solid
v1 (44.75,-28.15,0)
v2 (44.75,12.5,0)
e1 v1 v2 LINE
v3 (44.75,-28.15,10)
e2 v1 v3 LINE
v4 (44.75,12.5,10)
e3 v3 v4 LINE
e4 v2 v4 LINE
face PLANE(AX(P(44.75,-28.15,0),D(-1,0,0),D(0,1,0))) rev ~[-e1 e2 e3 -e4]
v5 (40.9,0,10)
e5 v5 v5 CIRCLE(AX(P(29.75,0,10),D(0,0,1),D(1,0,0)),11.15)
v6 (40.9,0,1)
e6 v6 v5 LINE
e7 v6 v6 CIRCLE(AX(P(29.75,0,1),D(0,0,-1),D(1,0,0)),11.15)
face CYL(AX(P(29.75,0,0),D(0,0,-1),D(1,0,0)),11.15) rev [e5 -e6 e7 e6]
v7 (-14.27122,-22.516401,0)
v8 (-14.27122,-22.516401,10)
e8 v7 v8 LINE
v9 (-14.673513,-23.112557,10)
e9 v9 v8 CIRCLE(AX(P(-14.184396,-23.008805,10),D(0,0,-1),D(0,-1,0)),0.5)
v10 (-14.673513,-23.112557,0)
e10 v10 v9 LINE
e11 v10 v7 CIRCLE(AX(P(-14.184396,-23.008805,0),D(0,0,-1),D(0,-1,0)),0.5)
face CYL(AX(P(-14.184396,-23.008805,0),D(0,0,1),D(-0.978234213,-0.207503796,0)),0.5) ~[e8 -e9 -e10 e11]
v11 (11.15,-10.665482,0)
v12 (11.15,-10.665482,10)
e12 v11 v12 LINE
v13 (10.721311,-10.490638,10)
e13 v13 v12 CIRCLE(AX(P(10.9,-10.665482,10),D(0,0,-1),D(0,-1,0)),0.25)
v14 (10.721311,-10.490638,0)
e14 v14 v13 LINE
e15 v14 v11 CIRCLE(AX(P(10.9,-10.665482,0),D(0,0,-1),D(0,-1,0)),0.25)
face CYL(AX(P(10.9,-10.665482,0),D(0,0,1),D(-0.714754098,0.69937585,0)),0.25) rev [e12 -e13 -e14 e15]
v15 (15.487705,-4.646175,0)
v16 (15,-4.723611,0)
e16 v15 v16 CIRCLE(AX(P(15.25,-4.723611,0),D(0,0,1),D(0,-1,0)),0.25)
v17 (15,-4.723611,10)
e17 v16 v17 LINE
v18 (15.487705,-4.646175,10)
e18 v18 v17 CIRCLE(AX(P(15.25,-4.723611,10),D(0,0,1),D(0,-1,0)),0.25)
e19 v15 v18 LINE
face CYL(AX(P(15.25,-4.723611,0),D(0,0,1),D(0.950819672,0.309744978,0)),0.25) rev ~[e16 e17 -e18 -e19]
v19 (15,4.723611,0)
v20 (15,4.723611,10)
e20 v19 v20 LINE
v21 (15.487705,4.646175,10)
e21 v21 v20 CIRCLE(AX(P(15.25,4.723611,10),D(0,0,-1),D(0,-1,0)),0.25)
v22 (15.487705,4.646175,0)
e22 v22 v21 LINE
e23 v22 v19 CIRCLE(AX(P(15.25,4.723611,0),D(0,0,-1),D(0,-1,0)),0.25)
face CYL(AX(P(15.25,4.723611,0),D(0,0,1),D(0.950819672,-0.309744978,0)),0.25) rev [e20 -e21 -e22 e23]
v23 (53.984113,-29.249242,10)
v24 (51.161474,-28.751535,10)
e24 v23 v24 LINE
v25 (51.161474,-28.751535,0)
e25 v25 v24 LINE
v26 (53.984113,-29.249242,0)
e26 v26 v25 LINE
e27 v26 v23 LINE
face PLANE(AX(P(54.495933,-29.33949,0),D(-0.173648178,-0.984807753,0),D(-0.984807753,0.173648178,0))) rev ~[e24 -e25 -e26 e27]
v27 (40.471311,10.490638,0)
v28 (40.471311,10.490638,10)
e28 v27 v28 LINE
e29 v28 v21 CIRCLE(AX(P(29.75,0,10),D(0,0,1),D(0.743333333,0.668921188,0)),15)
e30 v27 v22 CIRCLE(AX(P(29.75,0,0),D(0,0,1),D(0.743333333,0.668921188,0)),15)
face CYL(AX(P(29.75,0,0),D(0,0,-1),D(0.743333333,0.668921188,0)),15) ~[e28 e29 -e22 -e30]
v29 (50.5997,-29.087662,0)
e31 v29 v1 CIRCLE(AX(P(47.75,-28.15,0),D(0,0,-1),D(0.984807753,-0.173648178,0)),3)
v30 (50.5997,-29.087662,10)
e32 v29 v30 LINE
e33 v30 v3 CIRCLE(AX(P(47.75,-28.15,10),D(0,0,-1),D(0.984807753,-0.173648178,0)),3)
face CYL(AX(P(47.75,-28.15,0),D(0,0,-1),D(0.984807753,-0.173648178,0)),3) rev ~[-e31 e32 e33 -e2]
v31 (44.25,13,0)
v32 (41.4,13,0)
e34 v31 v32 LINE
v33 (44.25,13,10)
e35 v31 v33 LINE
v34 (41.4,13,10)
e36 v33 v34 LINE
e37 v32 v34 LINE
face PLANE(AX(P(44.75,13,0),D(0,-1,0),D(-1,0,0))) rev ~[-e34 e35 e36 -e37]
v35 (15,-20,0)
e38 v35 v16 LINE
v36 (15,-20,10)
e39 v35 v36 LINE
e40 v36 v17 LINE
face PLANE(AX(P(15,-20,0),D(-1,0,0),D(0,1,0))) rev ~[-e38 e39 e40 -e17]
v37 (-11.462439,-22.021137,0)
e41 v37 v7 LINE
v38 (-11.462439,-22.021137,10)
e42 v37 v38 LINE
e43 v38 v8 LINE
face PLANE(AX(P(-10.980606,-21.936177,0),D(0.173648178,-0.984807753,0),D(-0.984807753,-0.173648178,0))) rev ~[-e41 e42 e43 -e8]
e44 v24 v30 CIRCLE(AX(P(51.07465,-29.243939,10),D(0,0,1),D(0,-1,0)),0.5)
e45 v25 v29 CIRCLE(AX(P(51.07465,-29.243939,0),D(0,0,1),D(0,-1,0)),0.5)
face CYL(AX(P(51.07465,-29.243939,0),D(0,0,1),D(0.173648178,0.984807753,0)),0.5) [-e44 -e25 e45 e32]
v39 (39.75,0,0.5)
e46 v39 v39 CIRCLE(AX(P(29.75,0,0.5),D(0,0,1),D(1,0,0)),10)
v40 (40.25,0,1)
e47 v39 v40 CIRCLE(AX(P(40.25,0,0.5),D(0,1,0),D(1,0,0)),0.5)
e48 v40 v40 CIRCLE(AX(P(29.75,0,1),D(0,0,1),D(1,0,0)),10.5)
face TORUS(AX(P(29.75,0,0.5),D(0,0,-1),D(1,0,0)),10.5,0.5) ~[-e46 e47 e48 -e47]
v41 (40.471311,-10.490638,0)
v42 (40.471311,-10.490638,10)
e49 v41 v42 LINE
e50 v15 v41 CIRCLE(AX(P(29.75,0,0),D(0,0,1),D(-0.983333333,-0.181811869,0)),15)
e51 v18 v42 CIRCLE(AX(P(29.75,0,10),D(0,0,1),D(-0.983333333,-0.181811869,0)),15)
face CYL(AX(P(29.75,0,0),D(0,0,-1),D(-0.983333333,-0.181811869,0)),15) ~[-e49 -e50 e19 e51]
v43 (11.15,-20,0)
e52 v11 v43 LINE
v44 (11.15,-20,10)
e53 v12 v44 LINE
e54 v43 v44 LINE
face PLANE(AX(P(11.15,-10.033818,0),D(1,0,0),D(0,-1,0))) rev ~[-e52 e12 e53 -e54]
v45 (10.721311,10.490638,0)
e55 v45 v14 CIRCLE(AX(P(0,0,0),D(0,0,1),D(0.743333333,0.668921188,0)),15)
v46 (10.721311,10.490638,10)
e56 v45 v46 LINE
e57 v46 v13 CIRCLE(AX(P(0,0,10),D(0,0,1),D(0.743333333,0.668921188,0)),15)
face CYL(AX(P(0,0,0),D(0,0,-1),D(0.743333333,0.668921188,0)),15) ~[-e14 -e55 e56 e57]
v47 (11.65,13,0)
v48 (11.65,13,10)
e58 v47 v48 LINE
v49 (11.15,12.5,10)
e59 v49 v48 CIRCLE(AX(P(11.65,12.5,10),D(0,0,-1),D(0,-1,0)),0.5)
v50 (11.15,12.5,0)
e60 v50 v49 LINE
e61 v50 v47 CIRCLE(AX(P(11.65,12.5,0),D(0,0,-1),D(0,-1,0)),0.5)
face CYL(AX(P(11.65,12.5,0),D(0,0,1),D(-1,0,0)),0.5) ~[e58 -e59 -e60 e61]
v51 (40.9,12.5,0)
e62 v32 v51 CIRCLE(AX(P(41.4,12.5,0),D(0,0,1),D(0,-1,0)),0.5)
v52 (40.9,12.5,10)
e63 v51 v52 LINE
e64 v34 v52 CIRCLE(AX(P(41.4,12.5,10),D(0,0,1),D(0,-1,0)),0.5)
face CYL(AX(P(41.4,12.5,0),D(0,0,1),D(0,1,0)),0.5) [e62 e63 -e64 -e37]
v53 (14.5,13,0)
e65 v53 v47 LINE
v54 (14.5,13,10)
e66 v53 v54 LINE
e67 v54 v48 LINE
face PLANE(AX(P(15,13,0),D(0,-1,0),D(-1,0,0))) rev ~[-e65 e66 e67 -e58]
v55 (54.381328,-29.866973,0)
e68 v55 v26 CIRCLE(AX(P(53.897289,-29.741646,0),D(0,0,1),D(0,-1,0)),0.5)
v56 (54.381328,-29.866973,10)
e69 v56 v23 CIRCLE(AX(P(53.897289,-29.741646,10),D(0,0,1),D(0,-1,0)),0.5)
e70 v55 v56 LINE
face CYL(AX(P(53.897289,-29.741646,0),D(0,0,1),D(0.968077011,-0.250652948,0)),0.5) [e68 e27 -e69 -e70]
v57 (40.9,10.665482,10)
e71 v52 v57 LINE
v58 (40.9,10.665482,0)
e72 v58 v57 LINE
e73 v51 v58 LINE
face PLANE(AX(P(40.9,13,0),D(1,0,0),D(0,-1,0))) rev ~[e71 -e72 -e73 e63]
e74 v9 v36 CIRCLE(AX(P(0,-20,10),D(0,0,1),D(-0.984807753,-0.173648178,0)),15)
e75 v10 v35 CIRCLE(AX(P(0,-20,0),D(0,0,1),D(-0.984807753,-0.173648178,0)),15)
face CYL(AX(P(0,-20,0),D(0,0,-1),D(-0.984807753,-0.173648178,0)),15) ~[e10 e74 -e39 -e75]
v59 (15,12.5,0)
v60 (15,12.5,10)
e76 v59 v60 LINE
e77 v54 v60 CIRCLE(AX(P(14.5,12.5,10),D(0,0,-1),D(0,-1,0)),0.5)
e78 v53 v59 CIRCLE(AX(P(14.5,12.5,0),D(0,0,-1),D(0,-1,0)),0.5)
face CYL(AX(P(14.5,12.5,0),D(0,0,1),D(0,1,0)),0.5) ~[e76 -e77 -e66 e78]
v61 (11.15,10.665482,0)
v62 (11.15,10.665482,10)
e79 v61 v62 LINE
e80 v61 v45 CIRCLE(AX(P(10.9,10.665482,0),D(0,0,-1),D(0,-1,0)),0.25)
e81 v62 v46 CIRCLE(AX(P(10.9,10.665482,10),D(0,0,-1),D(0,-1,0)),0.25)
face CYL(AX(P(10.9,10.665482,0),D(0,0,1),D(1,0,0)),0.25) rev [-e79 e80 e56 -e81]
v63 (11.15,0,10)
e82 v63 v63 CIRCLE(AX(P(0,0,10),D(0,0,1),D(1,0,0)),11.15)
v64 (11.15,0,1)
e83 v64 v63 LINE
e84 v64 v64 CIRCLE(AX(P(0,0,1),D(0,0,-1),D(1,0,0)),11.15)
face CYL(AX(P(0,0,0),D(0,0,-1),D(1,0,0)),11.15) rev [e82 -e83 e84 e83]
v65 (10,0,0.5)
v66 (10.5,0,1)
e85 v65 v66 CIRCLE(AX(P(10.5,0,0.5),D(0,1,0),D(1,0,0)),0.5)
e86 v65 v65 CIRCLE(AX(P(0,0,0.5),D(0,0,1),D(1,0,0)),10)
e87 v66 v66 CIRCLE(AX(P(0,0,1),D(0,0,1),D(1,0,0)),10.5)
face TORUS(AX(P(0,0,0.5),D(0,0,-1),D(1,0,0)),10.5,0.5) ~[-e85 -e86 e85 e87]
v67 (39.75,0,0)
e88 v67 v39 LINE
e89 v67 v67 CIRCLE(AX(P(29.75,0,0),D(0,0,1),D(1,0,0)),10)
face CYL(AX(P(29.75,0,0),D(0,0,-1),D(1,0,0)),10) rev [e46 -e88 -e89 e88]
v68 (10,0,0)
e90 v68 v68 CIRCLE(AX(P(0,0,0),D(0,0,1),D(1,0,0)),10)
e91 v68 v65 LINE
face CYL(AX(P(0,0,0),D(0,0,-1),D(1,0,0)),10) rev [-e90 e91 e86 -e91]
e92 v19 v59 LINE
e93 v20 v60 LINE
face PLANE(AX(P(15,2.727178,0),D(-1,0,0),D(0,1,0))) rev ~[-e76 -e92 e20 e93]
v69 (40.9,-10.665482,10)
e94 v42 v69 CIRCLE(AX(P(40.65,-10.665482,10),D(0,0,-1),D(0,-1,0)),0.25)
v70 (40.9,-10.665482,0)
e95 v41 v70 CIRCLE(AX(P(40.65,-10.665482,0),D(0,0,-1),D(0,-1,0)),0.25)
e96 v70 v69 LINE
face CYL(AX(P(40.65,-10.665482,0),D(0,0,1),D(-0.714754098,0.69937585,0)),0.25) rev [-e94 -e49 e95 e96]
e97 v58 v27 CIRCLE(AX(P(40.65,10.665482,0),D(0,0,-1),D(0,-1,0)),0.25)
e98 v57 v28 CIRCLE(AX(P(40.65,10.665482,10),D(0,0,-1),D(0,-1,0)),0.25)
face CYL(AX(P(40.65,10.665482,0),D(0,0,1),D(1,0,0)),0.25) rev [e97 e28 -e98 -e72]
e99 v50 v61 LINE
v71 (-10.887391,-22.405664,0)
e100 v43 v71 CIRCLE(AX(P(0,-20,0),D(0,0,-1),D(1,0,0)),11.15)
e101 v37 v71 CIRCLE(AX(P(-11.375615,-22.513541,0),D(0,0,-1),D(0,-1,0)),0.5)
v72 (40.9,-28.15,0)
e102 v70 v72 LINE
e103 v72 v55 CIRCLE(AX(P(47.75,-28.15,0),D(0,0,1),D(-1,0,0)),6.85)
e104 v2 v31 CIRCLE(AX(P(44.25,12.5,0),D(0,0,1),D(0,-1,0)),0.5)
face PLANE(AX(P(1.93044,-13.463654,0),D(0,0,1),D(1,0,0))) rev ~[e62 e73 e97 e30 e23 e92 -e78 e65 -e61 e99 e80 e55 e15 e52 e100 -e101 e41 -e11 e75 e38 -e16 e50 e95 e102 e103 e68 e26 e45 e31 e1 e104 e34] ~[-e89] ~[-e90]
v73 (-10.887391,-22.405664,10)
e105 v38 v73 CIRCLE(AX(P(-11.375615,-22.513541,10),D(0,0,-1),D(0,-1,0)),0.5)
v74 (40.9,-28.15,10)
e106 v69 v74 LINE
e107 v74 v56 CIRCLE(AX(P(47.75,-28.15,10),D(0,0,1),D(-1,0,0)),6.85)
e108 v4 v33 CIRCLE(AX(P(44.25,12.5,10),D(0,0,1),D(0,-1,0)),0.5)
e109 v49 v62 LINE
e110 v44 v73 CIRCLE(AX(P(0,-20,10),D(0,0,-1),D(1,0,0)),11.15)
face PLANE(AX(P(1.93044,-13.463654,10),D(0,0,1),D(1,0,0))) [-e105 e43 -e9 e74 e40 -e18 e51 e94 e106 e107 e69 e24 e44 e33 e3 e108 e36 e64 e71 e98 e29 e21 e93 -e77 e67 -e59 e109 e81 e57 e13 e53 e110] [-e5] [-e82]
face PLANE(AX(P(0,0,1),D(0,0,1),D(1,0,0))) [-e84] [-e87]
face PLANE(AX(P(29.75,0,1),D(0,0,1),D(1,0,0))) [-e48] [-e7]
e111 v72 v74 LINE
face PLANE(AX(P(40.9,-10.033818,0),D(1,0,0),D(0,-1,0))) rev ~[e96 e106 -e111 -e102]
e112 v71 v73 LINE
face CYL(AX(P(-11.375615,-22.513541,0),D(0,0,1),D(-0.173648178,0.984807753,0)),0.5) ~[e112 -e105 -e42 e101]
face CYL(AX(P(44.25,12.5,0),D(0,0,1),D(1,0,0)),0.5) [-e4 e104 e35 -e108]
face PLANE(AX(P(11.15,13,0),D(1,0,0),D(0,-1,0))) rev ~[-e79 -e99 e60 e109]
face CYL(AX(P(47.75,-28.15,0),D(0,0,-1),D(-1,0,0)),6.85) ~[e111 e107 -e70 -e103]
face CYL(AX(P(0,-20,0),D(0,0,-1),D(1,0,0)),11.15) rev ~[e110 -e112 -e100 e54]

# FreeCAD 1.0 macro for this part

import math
import FreeCAD as App
import Part
import Sketcher
Q = App.Units.Quantity


def edges_at(feature, points):
    """Names of the edges that pass closest to the given points."""
    edges = feature.Shape.Edges
    near = lambda p: min(range(len(edges)), key=lambda i: edges[i].distToShape(Part.Vertex(*p))[0])
    return sorted({f"Edge{near(p) + 1}" for p in points})

doc = App.newDocument("Part")
body = doc.addObject("PartDesign::Body", "Body")

sketch1 = body.newObject("Sketcher::SketchObject", "Sketch")
sketch1.AttachmentSupport = (doc.getObject("XY_Plane"), [""])
sketch1.MapMode = "FlatFace"
sketch1.addGeometry(Part.ArcOfCircle(Part.Circle(App.Vector(29.75, 0, 0), App.Vector(0, 0, 1), 15), math.radians(-169.524686), math.radians(-41.983856)), False)
sketch1.addGeometry(Part.LineSegment(App.Vector(40.9, -10.033818, 0), App.Vector(40.9, -28.15, 0)), False)
sketch1.addGeometry(Part.ArcOfCircle(Part.Circle(App.Vector(47.75, -28.15, 0), App.Vector(0, 0, 1), 6.85), math.radians(180), math.radians(350)), False)
sketch1.addGeometry(Part.LineSegment(App.Vector(54.495933, -29.33949, 0), App.Vector(50.704423, -28.670945, 0)), False)
sketch1.addGeometry(Part.ArcOfCircle(Part.Circle(App.Vector(47.75, -28.15, 0), App.Vector(0, 0, 1), 3), math.radians(180), math.radians(350)), False)
sketch1.addGeometry(Part.LineSegment(App.Vector(44.75, -28.15, 0), App.Vector(44.75, 13, 0)), False)
sketch1.addGeometry(Part.LineSegment(App.Vector(44.75, 13, 0), App.Vector(40.9, 13, 0)), False)
sketch1.addGeometry(Part.LineSegment(App.Vector(40.9, 13, 0), App.Vector(40.9, 10.033818, 0)), False)
sketch1.addGeometry(Part.ArcOfCircle(Part.Circle(App.Vector(29.75, 0, 0), App.Vector(0, 0, 1), 15), math.radians(41.983856), math.radians(169.524686)), False)
sketch1.addGeometry(Part.LineSegment(App.Vector(15, 2.727178, 0), App.Vector(15, 13, 0)), False)
sketch1.addGeometry(Part.LineSegment(App.Vector(15, 13, 0), App.Vector(11.15, 13, 0)), False)
sketch1.addGeometry(Part.LineSegment(App.Vector(11.15, 13, 0), App.Vector(11.15, 10.033818, 0)), False)
sketch1.addGeometry(Part.ArcOfCircle(Part.Circle(App.Vector(0, 0, 0), App.Vector(0, 0, 1), 15), math.radians(41.983856), math.radians(318.016144)), False)
sketch1.addGeometry(Part.LineSegment(App.Vector(11.15, -10.033818, 0), App.Vector(11.15, -20, 0)), False)
sketch1.addGeometry(Part.ArcOfCircle(Part.Circle(App.Vector(0, -20, 0), App.Vector(0, 0, 1), 11.15), math.radians(-170), math.radians(0)), False)
sketch1.addGeometry(Part.LineSegment(App.Vector(-10.980606, -21.936177, 0), App.Vector(-14.772116, -22.604723, 0)), False)
sketch1.addGeometry(Part.ArcOfCircle(Part.Circle(App.Vector(0, -20, 0), App.Vector(0, 0, 1), 15), math.radians(-170), math.radians(0)), False)
sketch1.addGeometry(Part.LineSegment(App.Vector(15, -20, 0), App.Vector(15, -2.727178, 0)), False)
sketch1.addGeometry(Part.Circle(App.Vector(0, 0, 0), App.Vector(0, 0, 1), 11.15), False)
sketch1.addGeometry(Part.Circle(App.Vector(29.75, 0, 0), App.Vector(0, 0, 1), 11.15), False)
sketch1.addConstraint(Sketcher.Constraint("Coincident", 0, 2, 1, 1))
sketch1.addConstraint(Sketcher.Constraint("Tangent", 1, 2, 2, 1))
sketch1.addConstraint(Sketcher.Constraint("Coincident", 2, 2, 3, 1))
sketch1.addConstraint(Sketcher.Constraint("Coincident", 3, 2, 4, 2))
sketch1.addConstraint(Sketcher.Constraint("Tangent", 4, 1, 5, 1))
sketch1.addConstraint(Sketcher.Constraint("Coincident", 5, 2, 6, 1))
sketch1.addConstraint(Sketcher.Constraint("Coincident", 6, 2, 7, 1))
sketch1.addConstraint(Sketcher.Constraint("Coincident", 7, 2, 8, 1))
sketch1.addConstraint(Sketcher.Constraint("Coincident", 8, 2, 9, 1))
sketch1.addConstraint(Sketcher.Constraint("Coincident", 9, 2, 10, 1))
sketch1.addConstraint(Sketcher.Constraint("Coincident", 10, 2, 11, 1))
sketch1.addConstraint(Sketcher.Constraint("Coincident", 11, 2, 12, 1))
sketch1.addConstraint(Sketcher.Constraint("Coincident", 12, 2, 13, 1))
sketch1.addConstraint(Sketcher.Constraint("Tangent", 13, 2, 14, 2))
sketch1.addConstraint(Sketcher.Constraint("Coincident", 14, 1, 15, 1))
sketch1.addConstraint(Sketcher.Constraint("Coincident", 15, 2, 16, 1))
sketch1.addConstraint(Sketcher.Constraint("Tangent", 16, 2, 17, 1))
sketch1.addConstraint(Sketcher.Constraint("Coincident", 17, 2, 0, 1))
sketch1.addConstraint(Sketcher.Constraint("Vertical", 1))
sketch1.addConstraint(Sketcher.Constraint("Vertical", 5))
sketch1.addConstraint(Sketcher.Constraint("Horizontal", 6))
sketch1.addConstraint(Sketcher.Constraint("Vertical", 7))
sketch1.addConstraint(Sketcher.Constraint("Vertical", 9))
sketch1.addConstraint(Sketcher.Constraint("Horizontal", 10))
sketch1.addConstraint(Sketcher.Constraint("Vertical", 11))
sketch1.addConstraint(Sketcher.Constraint("Vertical", 13))
sketch1.addConstraint(Sketcher.Constraint("Vertical", 17))
sketch1.addConstraint(Sketcher.Constraint("Coincident", 12, 3, -1, 1))
sketch1.addConstraint(Sketcher.Constraint("Coincident", 18, 3, -1, 1))
sketch1.addConstraint(Sketcher.Constraint("Coincident", 4, 3, 2, 3))
sketch1.addConstraint(Sketcher.Constraint("Coincident", 8, 3, 0, 3))
sketch1.addConstraint(Sketcher.Constraint("Coincident", 16, 3, 14, 3))
sketch1.addConstraint(Sketcher.Constraint("Coincident", 19, 3, 0, 3))
sketch1.addConstraint(Sketcher.Constraint("Equal", 0, 8))
sketch1.addConstraint(Sketcher.Constraint("Equal", 8, 12))
sketch1.addConstraint(Sketcher.Constraint("Equal", 12, 16))
sketch1.addConstraint(Sketcher.Constraint("Equal", 14, 18))
sketch1.addConstraint(Sketcher.Constraint("Equal", 18, 19))
sketch1.addConstraint(Sketcher.Constraint("Symmetric", 0, 2, 7, 2, -1))
sketch1.addConstraint(Sketcher.Constraint("PointOnObject", 14, 3, -2))
sketch1.addConstraint(Sketcher.Constraint("Horizontal", 6, 2, 9, 2))
sketch1.addConstraint(Sketcher.Constraint("Horizontal", 7, 2, 11, 2))
sketch1.addConstraint(Sketcher.Constraint("Horizontal", 0, 2, 12, 2))
sketch1.addConstraint(Sketcher.Constraint("Vertical", 9, 2, 16, 2))
sketch1.addConstraint(Sketcher.Constraint("Equal", 6, 10))
sketch1.addConstraint(Sketcher.Constraint("Radius", 0, Q("15 mm")))
sketch1.addConstraint(Sketcher.Constraint("Radius", 4, Q("3 mm")))
sketch1.addConstraint(Sketcher.Constraint("Diameter", 18, Q("22.3 mm")))
sketch1.addConstraint(Sketcher.Constraint("Angle", 3, Q("170 deg")))
sketch1.addConstraint(Sketcher.Constraint("Angle", 15, Q("-170 deg")))
sketch1.addConstraint(Sketcher.Constraint("DistanceY", 14, 3, -1, 1, Q("20 mm")))
sketch1.addConstraint(Sketcher.Constraint("DistanceY", -1, 1, 5, 2, Q("13 mm")))
sketch1.addConstraint(Sketcher.Constraint("DistanceY", 5, 1, 5, 2, Q("41.15 mm")))
sketch1.addConstraint(Sketcher.Constraint("DistanceX", -1, 1, 0, 2, Q("40.9 mm")))
sketch1.addConstraint(Sketcher.Constraint("DistanceY", 2, 2, -1, 1, Q("29.33949 mm")))
sketch1.addConstraint(Sketcher.Constraint("DistanceX", 14, 1, -1, 1, Q("10.980606 mm")))
pad1 = body.newObject("PartDesign::Pad", "Pad")
pad1.Profile = sketch1
pad1.Length = 10

sketch2 = body.newObject("Sketcher::SketchObject", "Sketch001")
sketch2.AttachmentSupport = (doc.getObject("XY_Plane"), [""])
sketch2.MapMode = "FlatFace"
sketch2.addGeometry(Part.Circle(App.Vector(0, 0, 0), App.Vector(0, 0, 1), 11.5), False)
sketch2.addGeometry(Part.Circle(App.Vector(0, 0, 0), App.Vector(0, 0, 1), 10), False)
sketch2.addGeometry(Part.Circle(App.Vector(29.75, 0, 0), App.Vector(0, 0, 1), 11.5), False)
sketch2.addGeometry(Part.Circle(App.Vector(29.75, 0, 0), App.Vector(0, 0, 1), 10), False)
sketch2.addConstraint(Sketcher.Constraint("Coincident", 0, 3, -1, 1))
sketch2.addConstraint(Sketcher.Constraint("Coincident", 1, 3, -1, 1))
sketch2.addConstraint(Sketcher.Constraint("Coincident", 3, 3, 2, 3))
sketch2.addConstraint(Sketcher.Constraint("Equal", 0, 2))
sketch2.addConstraint(Sketcher.Constraint("Equal", 1, 3))
sketch2.addConstraint(Sketcher.Constraint("PointOnObject", 2, 3, -1))
sketch2.addConstraint(Sketcher.Constraint("Diameter", 0, Q("23 mm")))
sketch2.addConstraint(Sketcher.Constraint("Diameter", 1, Q("20 mm")))
sketch2.addConstraint(Sketcher.Constraint("DistanceX", -1, 1, 2, 3, Q("29.75 mm")))
pad2 = body.newObject("PartDesign::Pad", "Pad001")
pad2.Profile = sketch2
pad2.Length = 1
doc.recompute()

fillet = body.newObject("PartDesign::Fillet", "Fillet")
fillet.Base = (pad2, edges_at(pad2, [(-10, 0, 1), (19.75, 0, 1)]))
fillet.Radius = 0.5
doc.recompute()

fillet2 = body.newObject("PartDesign::Fillet", "Fillet001")
fillet2.Base = (fillet, edges_at(fillet, [
    (15, -2.727, 5),
    (15, 2.727, 5),
    (11.15, 10.034, 5),
    (40.9, 10.034, 5),
    (11.15, -10.034, 5),
    (40.9, -10.034, 5),
]))
fillet2.Radius = 0.25
doc.recompute()

fillet3 = body.newObject("PartDesign::Fillet", "Fillet002")
fillet3.Base = (fillet2, edges_at(fillet2, [
    (-10.981, -21.936, 5),
    (-14.772, -22.605, 5),
    (11.15, 13, 5),
    (15, 13, 5),
    (40.9, 13, 5),
    (44.75, 13, 5),
    (54.496, -29.339, 5),
    (50.704, -28.671, 5),
]))
fillet3.Radius = 0.5

doc.recompute()
